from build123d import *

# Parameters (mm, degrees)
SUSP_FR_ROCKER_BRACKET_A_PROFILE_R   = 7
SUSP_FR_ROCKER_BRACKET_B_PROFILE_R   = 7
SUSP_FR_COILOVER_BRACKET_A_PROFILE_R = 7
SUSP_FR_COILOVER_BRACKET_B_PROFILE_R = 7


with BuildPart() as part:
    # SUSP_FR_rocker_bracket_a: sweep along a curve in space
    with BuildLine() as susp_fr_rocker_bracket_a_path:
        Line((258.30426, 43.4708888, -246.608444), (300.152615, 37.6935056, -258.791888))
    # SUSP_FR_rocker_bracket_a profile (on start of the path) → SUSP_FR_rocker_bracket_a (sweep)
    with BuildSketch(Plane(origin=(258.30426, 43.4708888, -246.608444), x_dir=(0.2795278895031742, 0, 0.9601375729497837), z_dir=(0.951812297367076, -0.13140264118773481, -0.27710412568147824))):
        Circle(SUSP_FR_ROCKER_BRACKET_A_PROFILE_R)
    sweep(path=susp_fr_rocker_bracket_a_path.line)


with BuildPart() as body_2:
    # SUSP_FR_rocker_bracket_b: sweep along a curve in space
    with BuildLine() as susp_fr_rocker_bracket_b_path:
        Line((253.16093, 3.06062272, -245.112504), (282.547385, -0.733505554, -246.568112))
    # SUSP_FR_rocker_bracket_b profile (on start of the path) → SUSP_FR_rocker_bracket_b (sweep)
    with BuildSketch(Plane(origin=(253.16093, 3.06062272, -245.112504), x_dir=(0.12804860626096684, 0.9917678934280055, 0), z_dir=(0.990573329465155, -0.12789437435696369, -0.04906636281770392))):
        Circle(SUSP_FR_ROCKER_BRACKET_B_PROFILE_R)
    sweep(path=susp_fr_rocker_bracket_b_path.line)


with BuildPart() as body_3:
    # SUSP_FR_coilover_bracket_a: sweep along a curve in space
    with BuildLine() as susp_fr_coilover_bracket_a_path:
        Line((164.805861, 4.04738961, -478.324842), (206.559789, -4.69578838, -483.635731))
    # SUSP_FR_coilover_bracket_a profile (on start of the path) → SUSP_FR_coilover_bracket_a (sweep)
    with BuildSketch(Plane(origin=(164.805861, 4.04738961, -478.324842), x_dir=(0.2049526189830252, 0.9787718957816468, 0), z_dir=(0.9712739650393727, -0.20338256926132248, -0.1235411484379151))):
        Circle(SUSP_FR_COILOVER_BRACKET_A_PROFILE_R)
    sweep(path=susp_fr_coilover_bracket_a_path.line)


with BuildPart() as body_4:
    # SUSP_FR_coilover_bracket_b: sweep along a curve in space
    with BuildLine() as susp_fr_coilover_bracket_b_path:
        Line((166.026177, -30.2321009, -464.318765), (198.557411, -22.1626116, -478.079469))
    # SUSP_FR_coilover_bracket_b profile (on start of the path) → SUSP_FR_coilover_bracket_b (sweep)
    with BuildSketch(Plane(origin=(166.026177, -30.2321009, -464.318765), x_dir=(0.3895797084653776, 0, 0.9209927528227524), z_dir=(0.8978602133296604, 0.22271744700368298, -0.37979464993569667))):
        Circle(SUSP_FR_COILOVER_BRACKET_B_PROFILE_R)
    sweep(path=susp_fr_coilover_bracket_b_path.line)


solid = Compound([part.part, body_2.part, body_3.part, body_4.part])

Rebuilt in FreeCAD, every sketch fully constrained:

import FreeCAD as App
import Part
import Sketcher
from FreeCAD import Vector
Q = App.Units.Quantity

doc = App.newDocument("Part")
body = doc.addObject("PartDesign::Body", "Body")

sketch1 = doc.addObject("Sketcher::SketchObject", "Sketch")
body.addObject(sketch1)
sketch1.Placement = App.Placement(Vector(258.30426, 43.470889, -246.608444), App.Rotation(Vector(0.27952789, 0, 0.960137573), Vector(-0.126164613, -0.99132908, 0.036730703), Vector(0.951812297, -0.131402641, -0.277104126), "ZXY"))
sketch1.addGeometry(Part.Circle(Vector(0, 0, 0), Vector(0, 0, 1), 7), False)
sketch1.addConstraint([
    Sketcher.Constraint("Coincident", 0, 3, -1, 1),
    Sketcher.Constraint("Diameter", 0, Q("14 mm")),
])

sketch2 = doc.addObject("Sketcher::SketchObject", "Sketch001")
body.addObject(sketch2)
sketch2.Placement = App.Placement(Vector(-46.003243, 0, -158.014438), App.Rotation(Vector(0.960137573, 0, -0.27952789), Vector(0, 1, 0), Vector(0.27952789, 0, 0.960137573), "ZXY"))
sketch2.addGeometry(Part.LineSegment(Vector(316.941563, 43.470889, 0), Vector(360.527354, 37.693506, 0)), False)
sketch2.addConstraint([
    Sketcher.Constraint("DistanceY", -1, 1, 0, 1, Q("43.470889 mm")),
    Sketcher.Constraint("DistanceX", 0, 1, 0, 2, Q("43.58579 mm")),
    Sketcher.Constraint("Distance", 0, Q("43.967025 mm")),
    Sketcher.Constraint("DistanceX", -1, 1, 0, 1, Q("316.941563 mm")),
])
doc.recompute()

additivepipe = doc.addObject("PartDesign::AdditivePipe", "AdditivePipe")
body.addObject(additivepipe)
additivepipe.Profile = sketch1
additivepipe.Spine = (sketch2, ["Edge1"])
body2 = doc.addObject("PartDesign::Body", "Body001")

sketch3 = doc.addObject("Sketcher::SketchObject", "Sketch002")
body2.addObject(sketch3)
sketch3.Placement = App.Placement(Vector(253.16093, 3.060623, -245.112504), App.Rotation(Vector(0.128048606, 0.991767893, 0), Vector(0.048662443, -0.006282879, 0.99879552), Vector(0.990573329, -0.127894374, -0.049066363), "ZXY"))
sketch3.addGeometry(Part.Circle(Vector(0, 0, 0), Vector(0, 0, 1), 7), False)
sketch3.addConstraint([
    Sketcher.Constraint("Coincident", 0, 3, -1, 1),
    Sketcher.Constraint("Diameter", 0, Q("14 mm")),
])

sketch4 = doc.addObject("Sketcher::SketchObject", "Sketch003")
body2.addObject(sketch4)
sketch4.Placement = App.Placement(Vector(4.539622, 35.160484, 0), App.Rotation(Vector(0.991767893, -0.128048606, 0), Vector(0, 0, 0.999999999), Vector(-0.128048606, -0.991767893, 0), "ZXY"))
sketch4.addGeometry(Part.LineSegment(Vector(250.684974, -245.112504, 0), Vector(280.315349, -246.568112, 0)), False)
sketch4.addConstraint([
    Sketcher.Constraint("DistanceX", -1, 1, 0, 2, Q("280.315349 mm")),
    Sketcher.Constraint("DistanceY", 0, 2, -1, 1, Q("246.568112 mm")),
    Sketcher.Constraint("Distance", 0, Q("29.666108 mm")),
    Sketcher.Constraint("DistanceX", -1, 1, 0, 1, Q("250.684974 mm")),
])
doc.recompute()

additivepipe2 = doc.addObject("PartDesign::AdditivePipe", "AdditivePipe001")
body2.addObject(additivepipe2)
additivepipe2.Profile = sketch3
additivepipe2.Spine = (sketch4, ["Edge1"])
body3 = doc.addObject("PartDesign::Body", "Body002")

sketch5 = doc.addObject("Sketcher::SketchObject", "Sketch004")
body3.addObject(sketch5)
sketch5.Placement = App.Placement(Vector(164.805861, 4.04739, -478.324842), App.Rotation(Vector(0.204952619, 0.978771896, 0), Vector(0.120918604, -0.025320082, 0.99233945), Vector(0.971273965, -0.203382569, -0.123541148), "ZXY"))
sketch5.addGeometry(Part.Circle(Vector(0, 0, 0), Vector(0, 0, 1), 7), False)
sketch5.addConstraint([
    Sketcher.Constraint("Coincident", 0, 3, -1, 1),
    Sketcher.Constraint("Diameter", 0, Q("14 mm")),
])

sketch6 = doc.addObject("Sketcher::SketchObject", "Sketch005")
body3.addObject(sketch6)
sketch6.Placement = App.Placement(Vector(7.734679, 36.937739, 0), App.Rotation(Vector(0.978771896, -0.204952619, 0), Vector(0, 0, 1), Vector(-0.204952619, -0.978771896, 0), "ZXY"))
sketch6.addGeometry(Part.LineSegment(Vector(160.477822, -478.324842, 0), Vector(203.13733, -483.635731, 0)), False)
sketch6.addConstraint([
    Sketcher.Constraint("DistanceX", -1, 1, 0, 1, Q("160.477822 mm")),
    Sketcher.Constraint("DistanceX", -1, 1, 0, 2, Q("203.13733 mm")),
    Sketcher.Constraint("DistanceY", 0, 2, -1, 1, Q("483.635731 mm")),
    Sketcher.Constraint("DistanceY", 0, 2, 0, 1, Q("5.310889 mm")),
])
doc.recompute()

additivepipe3 = doc.addObject("PartDesign::AdditivePipe", "AdditivePipe002")
body3.addObject(additivepipe3)
additivepipe3.Profile = sketch5
additivepipe3.Spine = (sketch6, ["Edge1"])
body4 = doc.addObject("PartDesign::Body", "Body003")

sketch7 = doc.addObject("Sketcher::SketchObject", "Sketch006")
body4.addObject(sketch7)
sketch7.Placement = App.Placement(Vector(166.026177, -30.232101, -464.318765), App.Rotation(Vector(0.389579708, 0, 0.920992753), Vector(0.205121155, -0.974883038, -0.086766198), Vector(0.897860213, 0.222717447, -0.37979465), "ZXY"))
sketch7.addGeometry(Part.Circle(Vector(0, 0, 0), Vector(0, 0, 1), 7), False)
sketch7.addConstraint([
    Sketcher.Constraint("Coincident", 0, 3, -1, 1),
    Sketcher.Constraint("Diameter", 0, Q("14 mm")),
])

sketch8 = doc.addObject("Sketcher::SketchObject", "Sketch007")
body4.addObject(sketch8)
sketch8.Placement = App.Placement(Vector(-141.399431, 0, -334.277808), App.Rotation(Vector(0.920992753, 0, -0.389579708), Vector(0, 1, 0), Vector(0.389579708, 0, 0.920992753), "ZXY"))
sketch8.addGeometry(Part.LineSegment(Vector(333.798075, -30.232101, 0), Vector(369.119997, -22.162612, 0)), False)
sketch8.addConstraint([
    Sketcher.Constraint("DistanceY", 0, 1, -1, 1, Q("30.232101 mm")),
    Sketcher.Constraint("Distance", 0, Q("36.231959 mm")),
    Sketcher.Constraint("DistanceY", 0, 2, -1, 1, Q("22.162612 mm")),
    Sketcher.Constraint("DistanceX", -1, 1, 0, 1, Q("333.798075 mm")),
])
doc.recompute()

additivepipe4 = doc.addObject("PartDesign::AdditivePipe", "AdditivePipe003")
body4.addObject(additivepipe4)
additivepipe4.Profile = sketch7
additivepipe4.Spine = (sketch8, ["Edge1"])

doc.recompute()
